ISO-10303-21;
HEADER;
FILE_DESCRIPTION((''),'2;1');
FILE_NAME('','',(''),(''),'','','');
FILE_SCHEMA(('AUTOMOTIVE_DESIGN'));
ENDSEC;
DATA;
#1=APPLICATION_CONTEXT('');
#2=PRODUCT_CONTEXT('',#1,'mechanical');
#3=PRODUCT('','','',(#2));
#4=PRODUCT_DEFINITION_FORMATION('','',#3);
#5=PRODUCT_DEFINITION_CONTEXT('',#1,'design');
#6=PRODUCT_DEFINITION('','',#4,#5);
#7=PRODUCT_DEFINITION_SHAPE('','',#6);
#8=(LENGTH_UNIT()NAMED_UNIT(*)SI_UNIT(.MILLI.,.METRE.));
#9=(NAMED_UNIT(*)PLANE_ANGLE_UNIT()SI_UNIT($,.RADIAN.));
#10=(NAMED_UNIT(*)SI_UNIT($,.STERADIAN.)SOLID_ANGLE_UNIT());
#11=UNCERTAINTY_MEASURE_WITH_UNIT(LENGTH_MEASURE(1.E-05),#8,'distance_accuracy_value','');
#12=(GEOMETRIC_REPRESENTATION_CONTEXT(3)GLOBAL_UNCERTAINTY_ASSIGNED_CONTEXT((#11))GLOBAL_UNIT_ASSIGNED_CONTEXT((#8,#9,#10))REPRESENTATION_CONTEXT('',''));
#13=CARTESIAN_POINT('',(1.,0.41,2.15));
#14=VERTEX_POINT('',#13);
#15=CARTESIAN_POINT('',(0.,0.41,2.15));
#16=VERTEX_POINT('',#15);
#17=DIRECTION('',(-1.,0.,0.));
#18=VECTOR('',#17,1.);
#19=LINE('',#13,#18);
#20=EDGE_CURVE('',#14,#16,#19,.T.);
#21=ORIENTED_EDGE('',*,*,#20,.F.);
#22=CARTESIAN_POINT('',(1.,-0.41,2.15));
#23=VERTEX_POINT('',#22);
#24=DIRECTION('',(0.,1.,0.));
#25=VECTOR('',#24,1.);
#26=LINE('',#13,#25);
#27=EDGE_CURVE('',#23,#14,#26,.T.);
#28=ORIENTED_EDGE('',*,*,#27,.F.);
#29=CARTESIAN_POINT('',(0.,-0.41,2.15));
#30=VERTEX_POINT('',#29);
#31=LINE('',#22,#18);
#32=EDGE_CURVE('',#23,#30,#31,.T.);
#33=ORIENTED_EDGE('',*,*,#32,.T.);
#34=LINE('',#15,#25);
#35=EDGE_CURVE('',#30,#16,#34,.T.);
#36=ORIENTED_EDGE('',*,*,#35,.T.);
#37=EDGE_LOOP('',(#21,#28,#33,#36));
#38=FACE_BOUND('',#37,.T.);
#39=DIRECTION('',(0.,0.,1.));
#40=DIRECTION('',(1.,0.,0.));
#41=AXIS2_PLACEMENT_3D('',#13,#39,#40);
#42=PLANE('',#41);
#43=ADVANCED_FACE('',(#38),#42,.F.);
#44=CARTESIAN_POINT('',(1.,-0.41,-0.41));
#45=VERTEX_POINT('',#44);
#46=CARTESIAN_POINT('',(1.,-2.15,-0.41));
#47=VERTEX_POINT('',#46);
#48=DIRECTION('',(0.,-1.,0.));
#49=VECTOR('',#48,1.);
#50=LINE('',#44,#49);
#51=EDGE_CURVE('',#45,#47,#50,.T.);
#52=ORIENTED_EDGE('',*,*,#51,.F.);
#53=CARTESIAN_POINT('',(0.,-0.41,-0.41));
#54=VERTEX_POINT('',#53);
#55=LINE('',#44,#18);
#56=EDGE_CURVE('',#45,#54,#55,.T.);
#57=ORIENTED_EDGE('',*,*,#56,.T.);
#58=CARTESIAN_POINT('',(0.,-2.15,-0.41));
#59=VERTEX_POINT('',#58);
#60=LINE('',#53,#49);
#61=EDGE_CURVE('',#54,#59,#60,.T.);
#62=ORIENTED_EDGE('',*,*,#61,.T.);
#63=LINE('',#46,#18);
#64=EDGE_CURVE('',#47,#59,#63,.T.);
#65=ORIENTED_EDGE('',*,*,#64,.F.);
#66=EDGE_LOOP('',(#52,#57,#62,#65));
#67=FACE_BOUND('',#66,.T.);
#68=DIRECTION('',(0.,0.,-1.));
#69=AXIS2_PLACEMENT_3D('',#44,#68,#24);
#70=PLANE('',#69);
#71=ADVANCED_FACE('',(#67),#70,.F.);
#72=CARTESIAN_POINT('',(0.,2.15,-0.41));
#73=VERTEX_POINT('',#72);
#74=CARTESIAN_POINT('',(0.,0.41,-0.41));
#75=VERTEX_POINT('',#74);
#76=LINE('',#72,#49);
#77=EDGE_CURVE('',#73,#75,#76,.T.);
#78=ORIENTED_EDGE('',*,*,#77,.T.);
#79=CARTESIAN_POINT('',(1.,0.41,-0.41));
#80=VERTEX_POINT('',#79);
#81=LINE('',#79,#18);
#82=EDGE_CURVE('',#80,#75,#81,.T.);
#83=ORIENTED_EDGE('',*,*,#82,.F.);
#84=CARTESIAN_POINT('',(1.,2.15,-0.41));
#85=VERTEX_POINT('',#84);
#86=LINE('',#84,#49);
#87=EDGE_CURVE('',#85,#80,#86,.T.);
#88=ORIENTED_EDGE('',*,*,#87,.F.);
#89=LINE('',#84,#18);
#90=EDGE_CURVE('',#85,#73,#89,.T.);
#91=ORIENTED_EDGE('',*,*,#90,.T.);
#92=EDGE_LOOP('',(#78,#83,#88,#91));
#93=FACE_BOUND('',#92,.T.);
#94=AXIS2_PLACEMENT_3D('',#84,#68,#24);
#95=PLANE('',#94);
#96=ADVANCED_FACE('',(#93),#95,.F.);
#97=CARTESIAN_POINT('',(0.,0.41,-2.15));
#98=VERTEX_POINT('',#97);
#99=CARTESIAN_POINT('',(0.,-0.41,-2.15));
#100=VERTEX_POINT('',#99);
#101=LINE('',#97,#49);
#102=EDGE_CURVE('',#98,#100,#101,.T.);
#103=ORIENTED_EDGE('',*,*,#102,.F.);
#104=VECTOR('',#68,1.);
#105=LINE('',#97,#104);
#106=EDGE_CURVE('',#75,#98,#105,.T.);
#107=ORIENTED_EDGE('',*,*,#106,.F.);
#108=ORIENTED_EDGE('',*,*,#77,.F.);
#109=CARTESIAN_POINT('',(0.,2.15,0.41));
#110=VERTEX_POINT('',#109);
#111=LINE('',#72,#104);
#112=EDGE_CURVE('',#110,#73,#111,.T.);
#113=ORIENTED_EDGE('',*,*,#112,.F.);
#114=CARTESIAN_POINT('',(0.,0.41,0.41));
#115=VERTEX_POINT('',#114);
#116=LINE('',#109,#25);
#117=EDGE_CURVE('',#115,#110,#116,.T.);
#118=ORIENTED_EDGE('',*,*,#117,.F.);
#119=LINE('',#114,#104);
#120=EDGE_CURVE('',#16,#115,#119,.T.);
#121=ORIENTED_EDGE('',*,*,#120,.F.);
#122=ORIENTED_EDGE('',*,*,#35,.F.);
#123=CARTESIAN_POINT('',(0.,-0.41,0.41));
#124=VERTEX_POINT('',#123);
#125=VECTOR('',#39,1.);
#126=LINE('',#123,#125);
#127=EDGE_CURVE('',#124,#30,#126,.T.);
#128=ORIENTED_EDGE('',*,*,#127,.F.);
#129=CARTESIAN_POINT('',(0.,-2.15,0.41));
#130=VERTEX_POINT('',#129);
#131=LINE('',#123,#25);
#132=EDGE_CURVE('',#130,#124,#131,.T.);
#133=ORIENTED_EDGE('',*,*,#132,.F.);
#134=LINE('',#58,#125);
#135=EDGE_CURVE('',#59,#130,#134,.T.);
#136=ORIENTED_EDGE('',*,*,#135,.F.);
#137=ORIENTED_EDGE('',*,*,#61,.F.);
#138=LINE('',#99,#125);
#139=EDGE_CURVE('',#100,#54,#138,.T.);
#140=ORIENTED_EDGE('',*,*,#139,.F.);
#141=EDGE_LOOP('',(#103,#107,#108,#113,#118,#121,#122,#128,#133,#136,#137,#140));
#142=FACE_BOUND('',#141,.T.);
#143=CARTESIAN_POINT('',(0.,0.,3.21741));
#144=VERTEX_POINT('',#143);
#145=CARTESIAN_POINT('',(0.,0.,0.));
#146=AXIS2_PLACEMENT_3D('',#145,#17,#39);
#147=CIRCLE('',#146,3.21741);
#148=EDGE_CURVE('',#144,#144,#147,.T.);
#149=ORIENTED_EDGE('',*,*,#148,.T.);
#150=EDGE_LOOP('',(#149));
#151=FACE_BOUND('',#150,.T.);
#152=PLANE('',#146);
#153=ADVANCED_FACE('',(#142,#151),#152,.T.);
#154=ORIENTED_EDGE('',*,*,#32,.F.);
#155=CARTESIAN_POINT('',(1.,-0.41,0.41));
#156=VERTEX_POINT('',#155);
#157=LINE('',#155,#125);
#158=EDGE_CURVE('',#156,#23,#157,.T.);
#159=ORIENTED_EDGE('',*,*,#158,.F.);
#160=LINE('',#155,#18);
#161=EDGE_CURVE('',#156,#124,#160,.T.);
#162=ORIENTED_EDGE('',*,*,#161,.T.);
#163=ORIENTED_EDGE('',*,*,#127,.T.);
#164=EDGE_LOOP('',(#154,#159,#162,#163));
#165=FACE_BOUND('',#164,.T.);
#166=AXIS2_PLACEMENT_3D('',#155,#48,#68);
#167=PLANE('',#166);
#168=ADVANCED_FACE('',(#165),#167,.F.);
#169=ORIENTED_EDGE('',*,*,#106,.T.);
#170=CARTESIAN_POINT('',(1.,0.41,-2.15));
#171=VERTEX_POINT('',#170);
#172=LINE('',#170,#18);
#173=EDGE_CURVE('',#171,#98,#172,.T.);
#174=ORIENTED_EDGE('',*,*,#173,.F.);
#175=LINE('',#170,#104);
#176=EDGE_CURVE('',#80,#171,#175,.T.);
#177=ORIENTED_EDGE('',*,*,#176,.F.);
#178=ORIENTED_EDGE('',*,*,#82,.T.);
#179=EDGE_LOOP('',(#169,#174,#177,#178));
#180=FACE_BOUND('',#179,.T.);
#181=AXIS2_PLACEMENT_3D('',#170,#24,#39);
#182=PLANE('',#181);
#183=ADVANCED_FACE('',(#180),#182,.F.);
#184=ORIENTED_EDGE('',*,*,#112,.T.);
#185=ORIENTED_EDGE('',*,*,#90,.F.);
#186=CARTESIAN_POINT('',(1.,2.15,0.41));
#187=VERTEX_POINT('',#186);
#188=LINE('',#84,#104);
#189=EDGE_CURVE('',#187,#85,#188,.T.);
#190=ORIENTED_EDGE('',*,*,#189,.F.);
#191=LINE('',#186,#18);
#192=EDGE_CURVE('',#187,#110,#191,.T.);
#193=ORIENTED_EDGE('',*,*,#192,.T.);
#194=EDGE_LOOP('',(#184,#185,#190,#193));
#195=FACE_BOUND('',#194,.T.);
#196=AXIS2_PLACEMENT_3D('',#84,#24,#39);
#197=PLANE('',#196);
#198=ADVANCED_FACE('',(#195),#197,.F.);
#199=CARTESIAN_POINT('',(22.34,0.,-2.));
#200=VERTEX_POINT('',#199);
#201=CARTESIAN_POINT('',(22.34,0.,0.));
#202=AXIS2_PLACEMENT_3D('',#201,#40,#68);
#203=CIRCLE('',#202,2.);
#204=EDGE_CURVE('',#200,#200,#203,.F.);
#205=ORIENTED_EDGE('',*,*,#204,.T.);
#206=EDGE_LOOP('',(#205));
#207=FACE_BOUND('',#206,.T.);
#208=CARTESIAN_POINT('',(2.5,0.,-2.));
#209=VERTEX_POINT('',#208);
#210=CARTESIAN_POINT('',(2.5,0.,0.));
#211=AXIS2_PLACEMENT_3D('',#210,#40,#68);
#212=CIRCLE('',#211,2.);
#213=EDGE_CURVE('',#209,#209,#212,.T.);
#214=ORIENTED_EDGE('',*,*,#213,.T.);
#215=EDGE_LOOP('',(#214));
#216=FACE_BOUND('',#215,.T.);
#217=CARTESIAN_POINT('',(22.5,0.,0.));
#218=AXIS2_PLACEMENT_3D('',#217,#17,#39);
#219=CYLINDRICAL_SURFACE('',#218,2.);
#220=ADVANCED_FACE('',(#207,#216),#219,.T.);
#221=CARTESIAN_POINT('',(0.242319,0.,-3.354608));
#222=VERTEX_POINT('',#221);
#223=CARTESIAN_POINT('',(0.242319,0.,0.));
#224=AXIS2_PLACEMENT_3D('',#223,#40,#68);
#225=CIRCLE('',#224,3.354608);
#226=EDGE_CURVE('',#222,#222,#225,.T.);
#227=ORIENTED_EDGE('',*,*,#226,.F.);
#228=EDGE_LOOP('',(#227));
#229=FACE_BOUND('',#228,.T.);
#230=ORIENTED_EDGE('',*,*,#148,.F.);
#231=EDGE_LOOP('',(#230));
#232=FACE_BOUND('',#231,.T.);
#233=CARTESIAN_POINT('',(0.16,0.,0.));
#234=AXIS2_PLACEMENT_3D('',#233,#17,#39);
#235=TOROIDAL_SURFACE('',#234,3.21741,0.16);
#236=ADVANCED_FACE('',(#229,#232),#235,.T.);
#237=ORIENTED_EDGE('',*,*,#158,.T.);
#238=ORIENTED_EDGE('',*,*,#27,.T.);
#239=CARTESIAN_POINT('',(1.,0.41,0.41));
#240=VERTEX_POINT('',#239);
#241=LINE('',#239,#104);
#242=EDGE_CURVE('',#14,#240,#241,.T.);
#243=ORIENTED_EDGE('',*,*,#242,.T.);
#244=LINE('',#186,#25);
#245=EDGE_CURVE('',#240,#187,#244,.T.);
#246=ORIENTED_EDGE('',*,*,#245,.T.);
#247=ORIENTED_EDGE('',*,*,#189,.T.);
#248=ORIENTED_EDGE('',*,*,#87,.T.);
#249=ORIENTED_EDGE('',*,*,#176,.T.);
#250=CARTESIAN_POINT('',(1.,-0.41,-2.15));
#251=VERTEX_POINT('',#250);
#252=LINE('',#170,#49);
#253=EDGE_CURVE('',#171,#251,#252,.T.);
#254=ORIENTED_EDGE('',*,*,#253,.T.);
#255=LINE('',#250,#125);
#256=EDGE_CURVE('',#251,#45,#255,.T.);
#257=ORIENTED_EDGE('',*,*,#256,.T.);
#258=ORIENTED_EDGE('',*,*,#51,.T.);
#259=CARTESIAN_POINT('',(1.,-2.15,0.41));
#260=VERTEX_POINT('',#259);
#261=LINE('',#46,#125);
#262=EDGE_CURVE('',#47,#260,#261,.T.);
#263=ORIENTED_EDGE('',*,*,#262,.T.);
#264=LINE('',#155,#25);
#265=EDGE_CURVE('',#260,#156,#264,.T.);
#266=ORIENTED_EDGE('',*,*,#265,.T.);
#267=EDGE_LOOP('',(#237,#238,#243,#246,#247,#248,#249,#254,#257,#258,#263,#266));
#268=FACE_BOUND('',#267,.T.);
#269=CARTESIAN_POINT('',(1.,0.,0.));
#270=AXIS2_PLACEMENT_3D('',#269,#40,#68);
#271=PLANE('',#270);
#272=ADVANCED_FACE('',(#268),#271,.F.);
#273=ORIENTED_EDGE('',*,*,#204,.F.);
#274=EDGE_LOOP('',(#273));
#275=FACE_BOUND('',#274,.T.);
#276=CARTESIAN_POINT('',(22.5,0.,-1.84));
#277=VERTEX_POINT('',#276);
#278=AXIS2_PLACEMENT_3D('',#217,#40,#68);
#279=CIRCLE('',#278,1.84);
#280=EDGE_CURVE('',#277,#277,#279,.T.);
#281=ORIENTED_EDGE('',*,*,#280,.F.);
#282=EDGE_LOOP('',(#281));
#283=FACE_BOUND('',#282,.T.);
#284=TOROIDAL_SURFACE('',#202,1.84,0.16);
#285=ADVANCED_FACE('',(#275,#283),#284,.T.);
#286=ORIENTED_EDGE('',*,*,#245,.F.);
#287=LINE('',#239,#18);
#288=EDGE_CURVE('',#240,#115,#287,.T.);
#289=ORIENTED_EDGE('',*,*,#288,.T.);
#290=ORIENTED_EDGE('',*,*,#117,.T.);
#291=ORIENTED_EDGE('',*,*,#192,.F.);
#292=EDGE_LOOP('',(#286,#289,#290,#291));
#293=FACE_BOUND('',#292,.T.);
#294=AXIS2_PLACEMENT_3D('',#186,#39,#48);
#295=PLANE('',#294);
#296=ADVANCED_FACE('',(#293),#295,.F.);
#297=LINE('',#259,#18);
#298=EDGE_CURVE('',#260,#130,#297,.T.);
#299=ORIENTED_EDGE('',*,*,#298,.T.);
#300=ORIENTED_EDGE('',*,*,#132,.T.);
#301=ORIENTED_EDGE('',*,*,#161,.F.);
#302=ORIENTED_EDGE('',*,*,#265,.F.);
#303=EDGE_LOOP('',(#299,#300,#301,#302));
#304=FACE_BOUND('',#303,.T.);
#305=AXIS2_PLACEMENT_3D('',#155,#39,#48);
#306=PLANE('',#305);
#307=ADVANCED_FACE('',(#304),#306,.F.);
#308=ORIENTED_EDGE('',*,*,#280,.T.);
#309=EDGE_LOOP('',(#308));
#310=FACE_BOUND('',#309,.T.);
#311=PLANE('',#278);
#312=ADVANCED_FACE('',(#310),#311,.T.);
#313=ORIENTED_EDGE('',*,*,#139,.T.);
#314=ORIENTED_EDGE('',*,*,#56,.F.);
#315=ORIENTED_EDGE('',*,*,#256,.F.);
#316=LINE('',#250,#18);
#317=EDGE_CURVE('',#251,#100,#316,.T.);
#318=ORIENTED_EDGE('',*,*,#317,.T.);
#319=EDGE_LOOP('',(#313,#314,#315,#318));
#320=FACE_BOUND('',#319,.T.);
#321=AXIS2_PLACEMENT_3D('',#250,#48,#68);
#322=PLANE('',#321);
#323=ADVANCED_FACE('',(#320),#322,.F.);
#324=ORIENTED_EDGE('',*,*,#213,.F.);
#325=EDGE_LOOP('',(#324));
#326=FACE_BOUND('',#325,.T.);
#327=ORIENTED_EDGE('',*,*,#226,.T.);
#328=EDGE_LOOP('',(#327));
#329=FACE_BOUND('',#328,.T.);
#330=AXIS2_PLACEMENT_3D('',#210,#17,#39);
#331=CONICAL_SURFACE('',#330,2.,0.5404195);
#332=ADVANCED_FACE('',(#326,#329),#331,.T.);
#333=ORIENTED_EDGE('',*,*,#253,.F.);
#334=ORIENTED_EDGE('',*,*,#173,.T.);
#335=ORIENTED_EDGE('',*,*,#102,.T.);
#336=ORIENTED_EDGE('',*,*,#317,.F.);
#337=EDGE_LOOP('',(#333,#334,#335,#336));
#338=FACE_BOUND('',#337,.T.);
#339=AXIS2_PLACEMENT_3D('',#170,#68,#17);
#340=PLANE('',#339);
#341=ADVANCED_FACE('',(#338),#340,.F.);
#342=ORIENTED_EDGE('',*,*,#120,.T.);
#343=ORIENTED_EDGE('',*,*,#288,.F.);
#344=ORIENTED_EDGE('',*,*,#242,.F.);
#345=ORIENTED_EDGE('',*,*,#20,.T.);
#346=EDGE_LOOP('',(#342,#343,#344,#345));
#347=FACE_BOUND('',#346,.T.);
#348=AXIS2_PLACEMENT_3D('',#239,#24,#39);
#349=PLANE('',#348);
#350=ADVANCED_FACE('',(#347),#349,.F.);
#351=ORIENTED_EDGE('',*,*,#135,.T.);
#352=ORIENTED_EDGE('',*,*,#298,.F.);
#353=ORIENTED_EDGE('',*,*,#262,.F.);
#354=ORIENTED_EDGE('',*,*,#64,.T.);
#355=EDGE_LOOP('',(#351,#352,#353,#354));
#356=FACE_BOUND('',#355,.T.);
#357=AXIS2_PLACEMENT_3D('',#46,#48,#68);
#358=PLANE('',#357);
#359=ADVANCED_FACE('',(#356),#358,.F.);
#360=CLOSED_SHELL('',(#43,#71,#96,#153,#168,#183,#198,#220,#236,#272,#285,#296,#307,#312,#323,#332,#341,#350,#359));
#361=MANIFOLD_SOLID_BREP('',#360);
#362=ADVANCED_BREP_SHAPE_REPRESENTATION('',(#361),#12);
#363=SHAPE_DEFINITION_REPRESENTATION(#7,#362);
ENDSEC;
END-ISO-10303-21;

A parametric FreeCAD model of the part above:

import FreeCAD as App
import Part
import Sketcher

V = App.Vector
Q = App.Units.Quantity


def edges_at(feature, points):
    """Names of the edges that pass closest to the given points."""
    edges = feature.Shape.Edges
    near = lambda p: min(range(len(edges)), key=lambda i: edges[i].distToShape(Part.Vertex(*p))[0])
    return sorted({f"Edge{near(p) + 1}" for p in points})

doc = App.newDocument("Part")
params = doc.addObject("Spreadsheet::Sheet", "Params")
for row, (alias, value) in enumerate([
    ("sketch1_height", "2 mm"),
    ("sketch1_width", "2.5 mm"),
    ("sketch1_height2", "3.5 mm"),
    ("revolution_angle", "360 deg"),
    ("fillet_radius", "0.16 mm"),
    ("sketch2_diameter", "4 mm"),
    ("pad1_length", "20 mm"),
    ("fillet2_radius", "0.16 mm"),
    ("sketch3_width", "1.74 mm"),
    ("sketch3_width2", "0.82 mm"),
    ("pocket1_length", "1 mm"),
], start=1):
    params.set(f"A{row}", alias)
    params.set(f"B{row}", "=" + value)
    params.setAlias(f"B{row}", alias)

body = doc.addObject("PartDesign::Body", "Body")

sketch1 = doc.addObject("Sketcher::SketchObject", "Sketch")
body.addObject(sketch1)
sketch1.AttachmentSupport = (doc.XY_Plane, [""])
sketch1.MapMode = "FlatFace"
sketch1.addGeometry([
    Part.LineSegment(V(0, 3.5, 0), V(0, 0, 0)),
    Part.LineSegment(V(0, 0, 0), V(2.5, 0, 0)),
    Part.LineSegment(V(2.5, 0, 0), V(2.5, 2, 0)),
    Part.LineSegment(V(2.5, 2, 0), V(0, 3.5, 0)),
], False)
sketch1.addConstraint([
    Sketcher.Constraint("Coincident", 0, 2, 1, 1),
    Sketcher.Constraint("Coincident", 1, 2, 2, 1),
    Sketcher.Constraint("Coincident", 2, 2, 3, 1),
    Sketcher.Constraint("Coincident", 3, 2, 0, 1),
    Sketcher.Constraint("Vertical", 0),
    Sketcher.Constraint("Horizontal", 1),
    Sketcher.Constraint("Vertical", 2),
    Sketcher.Constraint("Coincident", 0, 2, -1, 1),
    Sketcher.Constraint("DistanceY", 2, 1, 2, 2, Q("2 mm")),
    Sketcher.Constraint("DistanceX", 1, 1, 1, 2, Q("2.5 mm")),
    Sketcher.Constraint("DistanceY", 0, 2, 0, 1, Q("3.5 mm")),
])
sketch1.setExpression("Constraints[8]", "Params.sketch1_height")
sketch1.setExpression("Constraints[9]", "Params.sketch1_width")
sketch1.setExpression("Constraints[10]", "Params.sketch1_height2")
revolution = doc.addObject("PartDesign::Revolution", "Revolution")
body.addObject(revolution)
revolution.Profile = sketch1
revolution.ReferenceAxis = (sketch1, ["H_Axis"])
revolution.setExpression("Angle", "Params.revolution_angle")
doc.recompute()

fillet = doc.addObject("PartDesign::Fillet", "Fillet")
body.addObject(fillet)
fillet.Base = (revolution, edges_at(revolution, [(0, -3.5, 0)]))
fillet.setExpression("Radius", "Params.fillet_radius")

sketch2 = doc.addObject("Sketcher::SketchObject", "Sketch001")
body.addObject(sketch2)
sketch2.AttachmentSupport = (doc.YZ_Plane, [""])
sketch2.MapMode = "FlatFace"
sketch2.AttachmentOffset = App.Placement(V(0, 0, 2.5), App.Rotation())
sketch2.addGeometry(Part.Circle(V(0, 0, 0), V(0, 0, 1), 2), False)
sketch2.addConstraint([
    Sketcher.Constraint("Coincident", 0, 3, -1, 1),
    Sketcher.Constraint("Diameter", 0, Q("4 mm")),
])
sketch2.setExpression("Constraints[1]", "Params.sketch2_diameter")
pad1 = doc.addObject("PartDesign::Pad", "Pad")
body.addObject(pad1)
pad1.Profile = sketch2
pad1.setExpression("Length", "Params.pad1_length")
doc.recompute()

fillet2 = doc.addObject("PartDesign::Fillet", "Fillet001")
body.addObject(fillet2)
fillet2.Base = (pad1, edges_at(pad1, [(22.5, 0, 2)]))
fillet2.setExpression("Radius", "Params.fillet2_radius")

sketch3 = doc.addObject("Sketcher::SketchObject", "Sketch002")
body.addObject(sketch3)
sketch3.AttachmentSupport = (doc.YZ_Plane, [""])
sketch3.MapMode = "FlatFace"
sketch3.addGeometry([
    Part.LineSegment(V(-2.15, 0.41, 0), V(-0.41, 0.41, 0)),
    Part.LineSegment(V(-0.41, 0.41, 0), V(-0.41, 2.15, 0)),
    Part.LineSegment(V(-0.41, 2.15, 0), V(0.41, 2.15, 0)),
    Part.LineSegment(V(0.41, 2.15, 0), V(0.41, 0.41, 0)),
    Part.LineSegment(V(0.41, 0.41, 0), V(2.15, 0.41, 0)),
    Part.LineSegment(V(2.15, 0.41, 0), V(2.15, -0.41, 0)),
    Part.LineSegment(V(2.15, -0.41, 0), V(0.41, -0.41, 0)),
    Part.LineSegment(V(0.41, -0.41, 0), V(0.41, -2.15, 0)),
    Part.LineSegment(V(0.41, -2.15, 0), V(-0.41, -2.15, 0)),
    Part.LineSegment(V(-0.41, -2.15, 0), V(-0.41, -0.41, 0)),
    Part.LineSegment(V(-0.41, -0.41, 0), V(-2.15, -0.41, 0)),
    Part.LineSegment(V(-2.15, -0.41, 0), V(-2.15, 0.41, 0)),
], False)
sketch3.addConstraint([
    Sketcher.Constraint("Coincident", 0, 2, 1, 1),
    Sketcher.Constraint("Coincident", 1, 2, 2, 1),
    Sketcher.Constraint("Coincident", 2, 2, 3, 1),
    Sketcher.Constraint("Coincident", 3, 2, 4, 1),
    Sketcher.Constraint("Coincident", 4, 2, 5, 1),
    Sketcher.Constraint("Coincident", 5, 2, 6, 1),
    Sketcher.Constraint("Coincident", 6, 2, 7, 1),
    Sketcher.Constraint("Coincident", 7, 2, 8, 1),
    Sketcher.Constraint("Coincident", 8, 2, 9, 1),
    Sketcher.Constraint("Coincident", 9, 2, 10, 1),
    Sketcher.Constraint("Coincident", 10, 2, 11, 1),
    Sketcher.Constraint("Coincident", 11, 2, 0, 1),
    Sketcher.Constraint("Horizontal", 0),
    Sketcher.Constraint("Vertical", 1),
    Sketcher.Constraint("Horizontal", 2),
    Sketcher.Constraint("Vertical", 3),
    Sketcher.Constraint("Horizontal", 4),
    Sketcher.Constraint("Vertical", 5),
    Sketcher.Constraint("Horizontal", 6),
    Sketcher.Constraint("Vertical", 7),
    Sketcher.Constraint("Horizontal", 8),
    Sketcher.Constraint("Vertical", 9),
    Sketcher.Constraint("Horizontal", 10),
    Sketcher.Constraint("Vertical", 11),
    Sketcher.Constraint("Symmetric", 0, 2, 6, 2, -1, 1),
    Sketcher.Constraint("Symmetric", 2, 2, 8, 2, -1, 1),
    Sketcher.Constraint("Symmetric", 4, 2, 10, 2, -1, 1),
    Sketcher.Constraint("Symmetric", 0, 2, 3, 2, -2),
    Sketcher.Constraint("Equal", 10, 1),
    Sketcher.Constraint("Equal", 8, 5),
    Sketcher.Constraint("DistanceX", 0, 1, 0, 2, Q("1.74 mm")),
    Sketcher.Constraint("DistanceX", 2, 1, 2, 2, Q("0.82 mm")),
])
sketch3.setExpression("Constraints[30]", "Params.sketch3_width")
sketch3.setExpression("Constraints[31]", "Params.sketch3_width2")
pocket1 = doc.addObject("PartDesign::Pocket", "Pocket")
body.addObject(pocket1)
pocket1.Profile = sketch3
pocket1.setExpression("Length", "Params.pocket1_length")
pocket1.Reversed = True

doc.recompute()
